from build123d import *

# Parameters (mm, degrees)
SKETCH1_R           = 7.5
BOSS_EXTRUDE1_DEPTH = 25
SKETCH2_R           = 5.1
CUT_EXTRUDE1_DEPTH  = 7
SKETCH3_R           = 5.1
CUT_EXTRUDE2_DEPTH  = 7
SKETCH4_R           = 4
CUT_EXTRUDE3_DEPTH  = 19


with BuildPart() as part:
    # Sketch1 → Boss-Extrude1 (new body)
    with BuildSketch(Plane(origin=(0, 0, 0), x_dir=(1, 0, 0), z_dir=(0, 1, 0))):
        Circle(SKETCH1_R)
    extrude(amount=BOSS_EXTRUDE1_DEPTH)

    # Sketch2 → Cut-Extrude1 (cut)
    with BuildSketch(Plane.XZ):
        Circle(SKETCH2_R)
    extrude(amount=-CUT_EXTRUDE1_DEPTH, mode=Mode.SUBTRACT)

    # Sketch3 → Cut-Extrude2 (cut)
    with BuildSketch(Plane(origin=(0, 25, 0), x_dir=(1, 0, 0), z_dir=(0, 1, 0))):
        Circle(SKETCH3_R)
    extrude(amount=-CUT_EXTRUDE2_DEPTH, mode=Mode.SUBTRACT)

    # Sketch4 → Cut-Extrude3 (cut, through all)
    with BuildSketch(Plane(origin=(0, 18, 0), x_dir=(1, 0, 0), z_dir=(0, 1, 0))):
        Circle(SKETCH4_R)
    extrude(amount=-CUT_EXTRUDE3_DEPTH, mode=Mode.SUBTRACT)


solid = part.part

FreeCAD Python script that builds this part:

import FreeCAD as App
import Part
import Sketcher
from FreeCAD import Vector
Q = App.Units.Quantity

doc = App.newDocument("Part")
body = doc.addObject("PartDesign::Body", "Body")

sketch1 = body.newObject("Sketcher::SketchObject", "Sketch")
sketch1.AttachmentSupport = (doc.getObject("XZ_Plane"), [""])
sketch1.MapMode = "FlatFace"
sketch1.addGeometry(Part.Circle(Vector(0, 0, 0), Vector(0, 0, 1), 7.5), False)
sketch1.addConstraint([
    Sketcher.Constraint("Coincident", 0, 3, -1, 1),
    Sketcher.Constraint("Diameter", 0, Q("15 mm")),
])
pad1 = body.newObject("PartDesign::Pad", "Pad")
pad1.Profile = sketch1
pad1.Length = 25
pad1.Reversed = True

sketch2 = body.newObject("Sketcher::SketchObject", "Sketch001")
sketch2.AttachmentSupport = (doc.getObject("XZ_Plane"), [""])
sketch2.MapMode = "FlatFace"
sketch2.addGeometry(Part.Circle(Vector(0, 0, 0), Vector(0, 0, 1), 5.1), False)
sketch2.addConstraint([
    Sketcher.Constraint("Coincident", 0, 3, -1, 1),
    Sketcher.Constraint("Diameter", 0, Q("10.2 mm")),
])
pocket1 = body.newObject("PartDesign::Pocket", "Pocket")
pocket1.Profile = sketch2
pocket1.Length = 7

sketch3 = body.newObject("Sketcher::SketchObject", "Sketch002")
sketch3.AttachmentSupport = (doc.getObject("XZ_Plane"), [""])
sketch3.MapMode = "FlatFace"
sketch3.AttachmentOffset = App.Placement(Vector(0, 0, -25), App.Rotation())
sketch3.addGeometry(Part.Circle(Vector(0, 0, 0), Vector(0, 0, 1), 5.1), False)
sketch3.addConstraint([
    Sketcher.Constraint("Coincident", 0, 3, -1, 1),
    Sketcher.Constraint("Diameter", 0, Q("10.2 mm")),
])
pocket2 = body.newObject("PartDesign::Pocket", "Pocket001")
pocket2.Profile = sketch3
pocket2.Length = 7
pocket2.Reversed = True

sketch4 = body.newObject("Sketcher::SketchObject", "Sketch003")
sketch4.AttachmentSupport = (doc.getObject("XZ_Plane"), [""])
sketch4.MapMode = "FlatFace"
sketch4.AttachmentOffset = App.Placement(Vector(0, 0, -18), App.Rotation())
sketch4.addGeometry(Part.Circle(Vector(0, 0, 0), Vector(0, 0, 1), 4), False)
sketch4.addConstraint([
    Sketcher.Constraint("Coincident", 0, 3, -1, 1),
    Sketcher.Constraint("Diameter", 0, Q("8 mm")),
])
pocket3 = body.newObject("PartDesign::Pocket", "Pocket002")
pocket3.Profile = sketch4
pocket3.Type = "ThroughAll"
pocket3.Reversed = True

doc.recompute()
